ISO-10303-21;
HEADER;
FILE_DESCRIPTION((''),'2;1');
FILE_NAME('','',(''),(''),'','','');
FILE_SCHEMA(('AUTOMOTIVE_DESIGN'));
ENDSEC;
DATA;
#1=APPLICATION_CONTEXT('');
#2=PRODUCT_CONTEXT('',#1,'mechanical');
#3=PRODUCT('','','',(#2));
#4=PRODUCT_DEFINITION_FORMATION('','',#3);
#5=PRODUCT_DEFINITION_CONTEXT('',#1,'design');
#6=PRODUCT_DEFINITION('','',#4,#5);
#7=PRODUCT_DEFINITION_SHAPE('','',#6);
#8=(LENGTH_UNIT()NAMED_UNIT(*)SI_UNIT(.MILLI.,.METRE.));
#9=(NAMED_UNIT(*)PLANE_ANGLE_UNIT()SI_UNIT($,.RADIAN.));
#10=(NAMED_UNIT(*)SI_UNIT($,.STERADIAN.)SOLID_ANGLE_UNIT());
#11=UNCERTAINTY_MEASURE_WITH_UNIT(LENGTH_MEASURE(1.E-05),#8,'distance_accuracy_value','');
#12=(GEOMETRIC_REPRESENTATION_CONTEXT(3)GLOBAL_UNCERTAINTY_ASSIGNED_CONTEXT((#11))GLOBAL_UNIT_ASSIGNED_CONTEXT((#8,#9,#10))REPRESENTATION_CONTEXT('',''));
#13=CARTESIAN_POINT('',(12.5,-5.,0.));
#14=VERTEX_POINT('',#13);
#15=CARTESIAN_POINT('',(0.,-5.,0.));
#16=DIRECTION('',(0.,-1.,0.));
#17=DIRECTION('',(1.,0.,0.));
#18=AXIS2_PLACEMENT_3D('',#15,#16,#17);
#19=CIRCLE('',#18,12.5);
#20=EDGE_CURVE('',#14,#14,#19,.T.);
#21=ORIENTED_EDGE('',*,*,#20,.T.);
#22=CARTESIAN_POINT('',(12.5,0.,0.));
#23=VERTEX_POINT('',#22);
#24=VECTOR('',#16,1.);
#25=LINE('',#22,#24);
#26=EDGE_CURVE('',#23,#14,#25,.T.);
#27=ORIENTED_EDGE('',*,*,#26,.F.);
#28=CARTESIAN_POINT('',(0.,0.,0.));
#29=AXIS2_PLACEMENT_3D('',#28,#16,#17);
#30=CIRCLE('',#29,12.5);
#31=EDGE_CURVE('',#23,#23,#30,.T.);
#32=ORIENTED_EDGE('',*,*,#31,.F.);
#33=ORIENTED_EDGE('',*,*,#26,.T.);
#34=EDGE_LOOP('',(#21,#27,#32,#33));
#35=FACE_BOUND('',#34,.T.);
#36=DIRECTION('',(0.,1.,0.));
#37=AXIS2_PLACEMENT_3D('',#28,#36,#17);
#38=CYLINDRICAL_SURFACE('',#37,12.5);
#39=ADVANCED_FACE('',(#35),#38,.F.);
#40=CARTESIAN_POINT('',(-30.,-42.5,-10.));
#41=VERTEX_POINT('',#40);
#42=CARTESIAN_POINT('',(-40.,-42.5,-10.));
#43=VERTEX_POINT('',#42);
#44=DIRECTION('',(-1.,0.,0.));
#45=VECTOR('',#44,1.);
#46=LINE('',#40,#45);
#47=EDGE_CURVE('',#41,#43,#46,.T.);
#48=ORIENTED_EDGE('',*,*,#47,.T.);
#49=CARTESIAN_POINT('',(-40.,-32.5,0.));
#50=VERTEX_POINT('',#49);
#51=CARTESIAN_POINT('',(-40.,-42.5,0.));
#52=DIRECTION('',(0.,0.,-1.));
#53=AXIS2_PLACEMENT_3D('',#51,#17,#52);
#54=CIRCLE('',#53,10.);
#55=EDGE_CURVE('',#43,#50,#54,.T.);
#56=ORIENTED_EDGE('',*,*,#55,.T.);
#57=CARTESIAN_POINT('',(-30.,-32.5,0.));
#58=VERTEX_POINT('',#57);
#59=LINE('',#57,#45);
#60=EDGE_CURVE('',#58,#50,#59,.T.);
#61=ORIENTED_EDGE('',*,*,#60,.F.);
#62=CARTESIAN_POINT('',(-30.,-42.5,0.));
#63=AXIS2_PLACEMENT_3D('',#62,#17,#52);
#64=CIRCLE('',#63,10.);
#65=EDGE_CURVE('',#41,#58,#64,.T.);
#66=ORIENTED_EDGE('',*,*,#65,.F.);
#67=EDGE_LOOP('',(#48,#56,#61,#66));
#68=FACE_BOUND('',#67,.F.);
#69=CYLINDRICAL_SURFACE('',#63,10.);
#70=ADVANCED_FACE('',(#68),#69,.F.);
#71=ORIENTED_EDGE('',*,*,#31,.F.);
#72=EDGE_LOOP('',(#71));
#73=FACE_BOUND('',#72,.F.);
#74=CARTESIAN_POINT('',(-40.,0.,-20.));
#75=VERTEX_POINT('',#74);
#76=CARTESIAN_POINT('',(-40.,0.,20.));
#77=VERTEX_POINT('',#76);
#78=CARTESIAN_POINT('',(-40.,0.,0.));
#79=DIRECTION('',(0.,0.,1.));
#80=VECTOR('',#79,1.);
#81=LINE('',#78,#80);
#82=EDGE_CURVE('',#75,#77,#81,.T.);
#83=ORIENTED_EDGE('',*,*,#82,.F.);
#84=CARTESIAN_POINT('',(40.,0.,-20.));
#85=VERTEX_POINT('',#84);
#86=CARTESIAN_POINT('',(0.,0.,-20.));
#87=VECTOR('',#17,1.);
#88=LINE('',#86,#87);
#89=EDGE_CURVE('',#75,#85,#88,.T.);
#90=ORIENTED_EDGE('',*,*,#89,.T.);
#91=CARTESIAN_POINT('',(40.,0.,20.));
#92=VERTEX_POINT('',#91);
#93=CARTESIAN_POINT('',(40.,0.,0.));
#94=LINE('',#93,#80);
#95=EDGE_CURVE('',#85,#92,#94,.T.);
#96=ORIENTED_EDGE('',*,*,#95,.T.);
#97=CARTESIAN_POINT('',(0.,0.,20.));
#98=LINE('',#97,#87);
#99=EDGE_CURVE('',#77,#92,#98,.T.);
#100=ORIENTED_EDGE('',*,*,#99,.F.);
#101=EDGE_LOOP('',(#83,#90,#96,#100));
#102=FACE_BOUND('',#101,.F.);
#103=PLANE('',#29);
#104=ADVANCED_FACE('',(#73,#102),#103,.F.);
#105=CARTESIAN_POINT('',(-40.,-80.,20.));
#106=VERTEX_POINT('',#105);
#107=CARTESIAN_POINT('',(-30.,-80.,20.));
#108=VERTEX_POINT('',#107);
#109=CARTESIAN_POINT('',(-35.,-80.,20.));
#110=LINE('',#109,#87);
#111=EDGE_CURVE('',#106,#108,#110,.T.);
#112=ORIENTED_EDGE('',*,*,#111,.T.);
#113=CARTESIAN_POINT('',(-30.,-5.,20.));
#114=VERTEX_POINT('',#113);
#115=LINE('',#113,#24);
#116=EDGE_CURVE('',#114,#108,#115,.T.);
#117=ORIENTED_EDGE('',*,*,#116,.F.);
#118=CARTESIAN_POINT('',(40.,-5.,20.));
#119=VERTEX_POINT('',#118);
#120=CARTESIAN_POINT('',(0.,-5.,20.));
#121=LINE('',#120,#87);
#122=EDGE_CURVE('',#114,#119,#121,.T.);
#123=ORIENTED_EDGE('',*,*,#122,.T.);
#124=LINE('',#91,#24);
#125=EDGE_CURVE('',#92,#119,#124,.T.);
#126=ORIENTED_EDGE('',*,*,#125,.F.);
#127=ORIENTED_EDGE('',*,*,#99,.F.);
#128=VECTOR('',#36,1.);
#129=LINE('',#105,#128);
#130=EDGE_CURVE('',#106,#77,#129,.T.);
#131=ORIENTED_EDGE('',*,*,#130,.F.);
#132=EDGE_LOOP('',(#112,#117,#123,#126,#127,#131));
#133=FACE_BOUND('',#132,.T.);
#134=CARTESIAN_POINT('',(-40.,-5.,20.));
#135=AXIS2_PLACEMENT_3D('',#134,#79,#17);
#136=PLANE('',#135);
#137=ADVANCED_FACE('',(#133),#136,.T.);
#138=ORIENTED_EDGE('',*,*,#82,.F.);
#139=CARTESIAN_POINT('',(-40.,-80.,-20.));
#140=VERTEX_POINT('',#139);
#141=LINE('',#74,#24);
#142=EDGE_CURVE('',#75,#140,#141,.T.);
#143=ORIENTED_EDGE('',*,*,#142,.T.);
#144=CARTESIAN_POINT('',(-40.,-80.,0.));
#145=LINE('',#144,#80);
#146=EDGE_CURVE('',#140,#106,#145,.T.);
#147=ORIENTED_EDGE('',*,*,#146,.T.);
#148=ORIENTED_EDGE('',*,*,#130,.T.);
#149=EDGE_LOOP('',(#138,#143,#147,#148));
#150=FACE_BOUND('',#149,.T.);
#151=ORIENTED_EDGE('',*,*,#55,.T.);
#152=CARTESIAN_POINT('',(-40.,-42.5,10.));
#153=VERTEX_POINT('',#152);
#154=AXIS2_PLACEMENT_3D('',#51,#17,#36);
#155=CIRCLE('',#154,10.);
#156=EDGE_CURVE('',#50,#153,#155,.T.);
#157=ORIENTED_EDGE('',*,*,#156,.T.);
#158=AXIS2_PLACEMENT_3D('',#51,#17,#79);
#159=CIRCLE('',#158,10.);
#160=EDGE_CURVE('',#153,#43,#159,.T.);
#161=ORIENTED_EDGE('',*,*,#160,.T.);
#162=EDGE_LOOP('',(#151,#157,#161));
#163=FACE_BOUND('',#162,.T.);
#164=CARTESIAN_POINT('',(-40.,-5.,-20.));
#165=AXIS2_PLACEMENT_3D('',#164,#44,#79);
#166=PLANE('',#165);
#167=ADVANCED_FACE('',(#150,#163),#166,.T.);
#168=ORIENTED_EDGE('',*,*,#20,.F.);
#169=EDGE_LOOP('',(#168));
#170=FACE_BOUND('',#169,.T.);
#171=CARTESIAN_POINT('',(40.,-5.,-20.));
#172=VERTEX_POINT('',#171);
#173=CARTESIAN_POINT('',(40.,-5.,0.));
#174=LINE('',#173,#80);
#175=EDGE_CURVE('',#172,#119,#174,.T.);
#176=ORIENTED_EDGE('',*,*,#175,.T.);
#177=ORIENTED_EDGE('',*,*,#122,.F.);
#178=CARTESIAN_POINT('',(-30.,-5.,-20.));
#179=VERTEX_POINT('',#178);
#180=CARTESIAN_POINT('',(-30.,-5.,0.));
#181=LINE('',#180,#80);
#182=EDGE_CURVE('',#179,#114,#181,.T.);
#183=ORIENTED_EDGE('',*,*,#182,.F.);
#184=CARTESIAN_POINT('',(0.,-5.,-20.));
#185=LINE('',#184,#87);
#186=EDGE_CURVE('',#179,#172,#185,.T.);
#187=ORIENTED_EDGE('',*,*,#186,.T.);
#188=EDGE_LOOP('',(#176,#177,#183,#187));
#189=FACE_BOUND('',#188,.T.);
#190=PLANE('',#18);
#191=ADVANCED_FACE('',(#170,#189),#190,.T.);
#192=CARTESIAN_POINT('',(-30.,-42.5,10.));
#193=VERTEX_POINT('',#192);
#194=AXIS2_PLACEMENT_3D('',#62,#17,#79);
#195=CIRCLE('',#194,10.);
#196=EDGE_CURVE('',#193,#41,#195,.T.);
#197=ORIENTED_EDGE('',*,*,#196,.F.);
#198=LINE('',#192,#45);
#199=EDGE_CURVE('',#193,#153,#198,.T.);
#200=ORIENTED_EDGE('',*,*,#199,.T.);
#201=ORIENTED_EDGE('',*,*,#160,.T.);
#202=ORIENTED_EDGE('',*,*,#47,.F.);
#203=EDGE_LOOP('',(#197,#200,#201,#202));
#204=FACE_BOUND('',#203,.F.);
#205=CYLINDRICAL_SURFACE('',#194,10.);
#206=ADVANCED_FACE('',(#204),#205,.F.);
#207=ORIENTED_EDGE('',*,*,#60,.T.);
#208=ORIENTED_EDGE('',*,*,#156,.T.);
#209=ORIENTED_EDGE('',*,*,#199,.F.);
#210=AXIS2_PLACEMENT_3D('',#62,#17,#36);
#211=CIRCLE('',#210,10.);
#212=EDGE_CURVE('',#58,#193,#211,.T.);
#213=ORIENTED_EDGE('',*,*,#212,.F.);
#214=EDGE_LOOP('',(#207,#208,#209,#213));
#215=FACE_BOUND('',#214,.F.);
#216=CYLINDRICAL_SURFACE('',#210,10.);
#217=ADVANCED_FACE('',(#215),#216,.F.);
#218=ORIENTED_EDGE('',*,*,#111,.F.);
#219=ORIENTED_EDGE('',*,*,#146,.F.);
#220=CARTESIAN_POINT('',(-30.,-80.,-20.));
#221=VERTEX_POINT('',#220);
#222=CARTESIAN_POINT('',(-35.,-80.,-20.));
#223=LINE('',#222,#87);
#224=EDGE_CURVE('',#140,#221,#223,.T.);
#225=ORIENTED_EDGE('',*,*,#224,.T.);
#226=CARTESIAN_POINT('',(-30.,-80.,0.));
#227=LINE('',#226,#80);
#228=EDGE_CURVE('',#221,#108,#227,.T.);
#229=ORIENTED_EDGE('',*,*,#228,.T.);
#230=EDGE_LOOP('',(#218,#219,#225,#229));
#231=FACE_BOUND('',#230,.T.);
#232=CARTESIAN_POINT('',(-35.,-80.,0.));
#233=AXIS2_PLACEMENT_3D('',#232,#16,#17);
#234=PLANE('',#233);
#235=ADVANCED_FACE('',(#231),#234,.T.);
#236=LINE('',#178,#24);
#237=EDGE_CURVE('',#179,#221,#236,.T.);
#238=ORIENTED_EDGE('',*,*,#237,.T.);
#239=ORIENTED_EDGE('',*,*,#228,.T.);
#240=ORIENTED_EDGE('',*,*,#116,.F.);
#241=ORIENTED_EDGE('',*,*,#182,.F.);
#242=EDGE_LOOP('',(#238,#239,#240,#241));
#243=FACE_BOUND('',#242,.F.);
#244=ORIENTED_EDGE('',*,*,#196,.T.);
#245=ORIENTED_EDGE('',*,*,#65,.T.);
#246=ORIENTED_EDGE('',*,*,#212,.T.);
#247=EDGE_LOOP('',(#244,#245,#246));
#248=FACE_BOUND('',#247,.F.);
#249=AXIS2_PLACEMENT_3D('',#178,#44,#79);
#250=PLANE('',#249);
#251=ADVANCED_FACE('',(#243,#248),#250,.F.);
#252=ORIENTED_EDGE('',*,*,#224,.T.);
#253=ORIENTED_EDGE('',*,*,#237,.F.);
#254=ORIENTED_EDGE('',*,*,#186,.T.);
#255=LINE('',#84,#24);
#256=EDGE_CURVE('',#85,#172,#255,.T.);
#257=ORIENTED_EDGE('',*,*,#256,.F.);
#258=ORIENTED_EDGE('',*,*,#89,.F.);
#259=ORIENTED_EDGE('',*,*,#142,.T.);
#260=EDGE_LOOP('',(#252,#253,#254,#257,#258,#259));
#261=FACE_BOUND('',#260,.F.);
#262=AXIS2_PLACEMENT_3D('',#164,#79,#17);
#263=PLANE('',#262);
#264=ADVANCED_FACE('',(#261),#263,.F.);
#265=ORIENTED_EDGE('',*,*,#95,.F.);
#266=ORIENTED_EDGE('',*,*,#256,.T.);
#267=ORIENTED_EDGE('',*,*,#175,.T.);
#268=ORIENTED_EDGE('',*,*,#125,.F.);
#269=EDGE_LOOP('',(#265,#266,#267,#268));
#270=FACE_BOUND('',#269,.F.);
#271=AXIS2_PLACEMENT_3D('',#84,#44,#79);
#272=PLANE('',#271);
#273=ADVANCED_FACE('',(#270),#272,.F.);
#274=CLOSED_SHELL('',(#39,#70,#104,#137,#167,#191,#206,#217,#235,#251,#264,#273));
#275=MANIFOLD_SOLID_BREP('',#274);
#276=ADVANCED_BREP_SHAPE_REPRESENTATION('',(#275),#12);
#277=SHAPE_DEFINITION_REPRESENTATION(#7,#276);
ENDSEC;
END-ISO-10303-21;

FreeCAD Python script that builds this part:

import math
import FreeCAD as App
import Part
import Sketcher

V = App.Vector
Q = App.Units.Quantity


def add_polygon(sketch, points):
    """Adds a closed chain of lines whose ends are joined by coincident constraints."""
    first, n = sketch.GeometryCount, len(points)
    for a, b in zip(points, points[1:] + points[:1]):
        sketch.addGeometry(Part.LineSegment(App.Vector(*a, 0), App.Vector(*b, 0)), False)
    for i in range(n):
        sketch.addConstraint(Sketcher.Constraint("Coincident", first + i, 2, first + (i + 1) % n, 1))

doc = App.newDocument("Part")
body = doc.addObject("PartDesign::Body", "Body")

# Sketch on XZ plane
sketch1 = doc.addObject("Sketcher::SketchObject", "Sketch")
body.addObject(sketch1)
sketch1.AttachmentSupport = (doc.XZ_Plane, [""])
sketch1.MapMode = "FlatFace"
add_polygon(sketch1, [(-40, 20), (-40, -20), (40, -20), (40, 20)])  # lines 0-3
sketch1.addGeometry(Part.Circle(V(0, 0, 0), V(0, 0, 1), 12.5), False)  # 4
sketch1.addConstraint(Sketcher.Constraint("Vertical", 0))
sketch1.addConstraint(Sketcher.Constraint("Horizontal", 1))
sketch1.addConstraint(Sketcher.Constraint("Vertical", 2))
sketch1.addConstraint(Sketcher.Constraint("Horizontal", 3))
sketch1.addConstraint(Sketcher.Constraint("Coincident", 4, 3, -1, 1))
sketch1.addConstraint(Sketcher.Constraint("Symmetric", 0, 2, 2, 2, -1, 1))
sketch1.addConstraint(Sketcher.Constraint("Diameter", 4, Q("25 mm")))
sketch1.addConstraint(Sketcher.Constraint("DistanceX", 1, 1, 1, 2, Q("80 mm")))
sketch1.addConstraint(Sketcher.Constraint("DistanceY", 0, 2, 0, 1, Q("40 mm")))
pad1 = doc.addObject("PartDesign::Pad", "Pad")
body.addObject(pad1)
pad1.Profile = sketch1
pad1.Length = 5

# Sketch on XZ plane
sketch2 = doc.addObject("Sketcher::SketchObject", "Sketch001")
body.addObject(sketch2)
sketch2.AttachmentSupport = (doc.XZ_Plane, [""])
sketch2.MapMode = "FlatFace"
sketch2.AttachmentOffset = App.Placement(V(0, 0, 5), App.Rotation())
add_polygon(sketch2, [(-40, 20), (-40, -20), (-30, -20), (-30, 20)])  # lines 0-3
sketch2.addConstraint(Sketcher.Constraint("Vertical", 0))
sketch2.addConstraint(Sketcher.Constraint("Horizontal", 1))
sketch2.addConstraint(Sketcher.Constraint("Vertical", 2))
sketch2.addConstraint(Sketcher.Constraint("Horizontal", 3))
sketch2.addConstraint(Sketcher.Constraint("DistanceX", 1, 1, 1, 2, Q("10 mm")))
sketch2.addConstraint(Sketcher.Constraint("DistanceY", 0, 2, 0, 1, Q("40 mm")))
sketch2.addConstraint(Sketcher.Constraint("DistanceX", 0, 2, -1, 1, Q("40 mm")))
sketch2.addConstraint(Sketcher.Constraint("DistanceY", 0, 2, -1, 1, Q("20 mm")))
pad2 = doc.addObject("PartDesign::Pad", "Pad001")
body.addObject(pad2)
pad2.Profile = sketch2
pad2.Length = 75

# Sketch on YZ plane
sketch3 = doc.addObject("Sketcher::SketchObject", "Sketch002")
body.addObject(sketch3)
sketch3.AttachmentSupport = (doc.YZ_Plane, [""])
sketch3.MapMode = "FlatFace"
sketch3.AttachmentOffset = App.Placement(V(0, 0, -30), App.Rotation())
sketch3.addGeometry(Part.ArcOfCircle(Part.Circle(V(-42.5, 0, 0), V(0, 0, 1), 10), math.radians(0), math.radians(90)), False)
sketch3.addGeometry(Part.ArcOfCircle(Part.Circle(V(-42.5, 0, 0), V(0, 0, 1), 10), math.radians(90), math.radians(270)), False)
sketch3.addGeometry(Part.ArcOfCircle(Part.Circle(V(-42.5, 0, 0), V(0, 0, 1), 10), math.radians(-90), math.radians(0)), False)
sketch3.addConstraint(Sketcher.Constraint("Tangent", 0, 2, 1, 1))
sketch3.addConstraint(Sketcher.Constraint("Tangent", 1, 2, 2, 1))
sketch3.addConstraint(Sketcher.Constraint("Tangent", 2, 2, 0, 1))
sketch3.addConstraint(Sketcher.Constraint("Symmetric", 0, 2, 1, 2, -1))
sketch3.addConstraint(Sketcher.Constraint("PointOnObject", 2, 2, -1))
sketch3.addConstraint(Sketcher.Constraint("Vertical", 2, 3, 0, 2))
sketch3.addConstraint(Sketcher.Constraint("Radius", 0, Q("10 mm")))
sketch3.addConstraint(Sketcher.Constraint("DistanceX", 0, 3, -1, 1, Q("42.5 mm")))
pocket1 = doc.addObject("PartDesign::Pocket", "Pocket")
body.addObject(pocket1)
pocket1.Profile = sketch3
pocket1.Type = "ThroughAll"

doc.recompute()
